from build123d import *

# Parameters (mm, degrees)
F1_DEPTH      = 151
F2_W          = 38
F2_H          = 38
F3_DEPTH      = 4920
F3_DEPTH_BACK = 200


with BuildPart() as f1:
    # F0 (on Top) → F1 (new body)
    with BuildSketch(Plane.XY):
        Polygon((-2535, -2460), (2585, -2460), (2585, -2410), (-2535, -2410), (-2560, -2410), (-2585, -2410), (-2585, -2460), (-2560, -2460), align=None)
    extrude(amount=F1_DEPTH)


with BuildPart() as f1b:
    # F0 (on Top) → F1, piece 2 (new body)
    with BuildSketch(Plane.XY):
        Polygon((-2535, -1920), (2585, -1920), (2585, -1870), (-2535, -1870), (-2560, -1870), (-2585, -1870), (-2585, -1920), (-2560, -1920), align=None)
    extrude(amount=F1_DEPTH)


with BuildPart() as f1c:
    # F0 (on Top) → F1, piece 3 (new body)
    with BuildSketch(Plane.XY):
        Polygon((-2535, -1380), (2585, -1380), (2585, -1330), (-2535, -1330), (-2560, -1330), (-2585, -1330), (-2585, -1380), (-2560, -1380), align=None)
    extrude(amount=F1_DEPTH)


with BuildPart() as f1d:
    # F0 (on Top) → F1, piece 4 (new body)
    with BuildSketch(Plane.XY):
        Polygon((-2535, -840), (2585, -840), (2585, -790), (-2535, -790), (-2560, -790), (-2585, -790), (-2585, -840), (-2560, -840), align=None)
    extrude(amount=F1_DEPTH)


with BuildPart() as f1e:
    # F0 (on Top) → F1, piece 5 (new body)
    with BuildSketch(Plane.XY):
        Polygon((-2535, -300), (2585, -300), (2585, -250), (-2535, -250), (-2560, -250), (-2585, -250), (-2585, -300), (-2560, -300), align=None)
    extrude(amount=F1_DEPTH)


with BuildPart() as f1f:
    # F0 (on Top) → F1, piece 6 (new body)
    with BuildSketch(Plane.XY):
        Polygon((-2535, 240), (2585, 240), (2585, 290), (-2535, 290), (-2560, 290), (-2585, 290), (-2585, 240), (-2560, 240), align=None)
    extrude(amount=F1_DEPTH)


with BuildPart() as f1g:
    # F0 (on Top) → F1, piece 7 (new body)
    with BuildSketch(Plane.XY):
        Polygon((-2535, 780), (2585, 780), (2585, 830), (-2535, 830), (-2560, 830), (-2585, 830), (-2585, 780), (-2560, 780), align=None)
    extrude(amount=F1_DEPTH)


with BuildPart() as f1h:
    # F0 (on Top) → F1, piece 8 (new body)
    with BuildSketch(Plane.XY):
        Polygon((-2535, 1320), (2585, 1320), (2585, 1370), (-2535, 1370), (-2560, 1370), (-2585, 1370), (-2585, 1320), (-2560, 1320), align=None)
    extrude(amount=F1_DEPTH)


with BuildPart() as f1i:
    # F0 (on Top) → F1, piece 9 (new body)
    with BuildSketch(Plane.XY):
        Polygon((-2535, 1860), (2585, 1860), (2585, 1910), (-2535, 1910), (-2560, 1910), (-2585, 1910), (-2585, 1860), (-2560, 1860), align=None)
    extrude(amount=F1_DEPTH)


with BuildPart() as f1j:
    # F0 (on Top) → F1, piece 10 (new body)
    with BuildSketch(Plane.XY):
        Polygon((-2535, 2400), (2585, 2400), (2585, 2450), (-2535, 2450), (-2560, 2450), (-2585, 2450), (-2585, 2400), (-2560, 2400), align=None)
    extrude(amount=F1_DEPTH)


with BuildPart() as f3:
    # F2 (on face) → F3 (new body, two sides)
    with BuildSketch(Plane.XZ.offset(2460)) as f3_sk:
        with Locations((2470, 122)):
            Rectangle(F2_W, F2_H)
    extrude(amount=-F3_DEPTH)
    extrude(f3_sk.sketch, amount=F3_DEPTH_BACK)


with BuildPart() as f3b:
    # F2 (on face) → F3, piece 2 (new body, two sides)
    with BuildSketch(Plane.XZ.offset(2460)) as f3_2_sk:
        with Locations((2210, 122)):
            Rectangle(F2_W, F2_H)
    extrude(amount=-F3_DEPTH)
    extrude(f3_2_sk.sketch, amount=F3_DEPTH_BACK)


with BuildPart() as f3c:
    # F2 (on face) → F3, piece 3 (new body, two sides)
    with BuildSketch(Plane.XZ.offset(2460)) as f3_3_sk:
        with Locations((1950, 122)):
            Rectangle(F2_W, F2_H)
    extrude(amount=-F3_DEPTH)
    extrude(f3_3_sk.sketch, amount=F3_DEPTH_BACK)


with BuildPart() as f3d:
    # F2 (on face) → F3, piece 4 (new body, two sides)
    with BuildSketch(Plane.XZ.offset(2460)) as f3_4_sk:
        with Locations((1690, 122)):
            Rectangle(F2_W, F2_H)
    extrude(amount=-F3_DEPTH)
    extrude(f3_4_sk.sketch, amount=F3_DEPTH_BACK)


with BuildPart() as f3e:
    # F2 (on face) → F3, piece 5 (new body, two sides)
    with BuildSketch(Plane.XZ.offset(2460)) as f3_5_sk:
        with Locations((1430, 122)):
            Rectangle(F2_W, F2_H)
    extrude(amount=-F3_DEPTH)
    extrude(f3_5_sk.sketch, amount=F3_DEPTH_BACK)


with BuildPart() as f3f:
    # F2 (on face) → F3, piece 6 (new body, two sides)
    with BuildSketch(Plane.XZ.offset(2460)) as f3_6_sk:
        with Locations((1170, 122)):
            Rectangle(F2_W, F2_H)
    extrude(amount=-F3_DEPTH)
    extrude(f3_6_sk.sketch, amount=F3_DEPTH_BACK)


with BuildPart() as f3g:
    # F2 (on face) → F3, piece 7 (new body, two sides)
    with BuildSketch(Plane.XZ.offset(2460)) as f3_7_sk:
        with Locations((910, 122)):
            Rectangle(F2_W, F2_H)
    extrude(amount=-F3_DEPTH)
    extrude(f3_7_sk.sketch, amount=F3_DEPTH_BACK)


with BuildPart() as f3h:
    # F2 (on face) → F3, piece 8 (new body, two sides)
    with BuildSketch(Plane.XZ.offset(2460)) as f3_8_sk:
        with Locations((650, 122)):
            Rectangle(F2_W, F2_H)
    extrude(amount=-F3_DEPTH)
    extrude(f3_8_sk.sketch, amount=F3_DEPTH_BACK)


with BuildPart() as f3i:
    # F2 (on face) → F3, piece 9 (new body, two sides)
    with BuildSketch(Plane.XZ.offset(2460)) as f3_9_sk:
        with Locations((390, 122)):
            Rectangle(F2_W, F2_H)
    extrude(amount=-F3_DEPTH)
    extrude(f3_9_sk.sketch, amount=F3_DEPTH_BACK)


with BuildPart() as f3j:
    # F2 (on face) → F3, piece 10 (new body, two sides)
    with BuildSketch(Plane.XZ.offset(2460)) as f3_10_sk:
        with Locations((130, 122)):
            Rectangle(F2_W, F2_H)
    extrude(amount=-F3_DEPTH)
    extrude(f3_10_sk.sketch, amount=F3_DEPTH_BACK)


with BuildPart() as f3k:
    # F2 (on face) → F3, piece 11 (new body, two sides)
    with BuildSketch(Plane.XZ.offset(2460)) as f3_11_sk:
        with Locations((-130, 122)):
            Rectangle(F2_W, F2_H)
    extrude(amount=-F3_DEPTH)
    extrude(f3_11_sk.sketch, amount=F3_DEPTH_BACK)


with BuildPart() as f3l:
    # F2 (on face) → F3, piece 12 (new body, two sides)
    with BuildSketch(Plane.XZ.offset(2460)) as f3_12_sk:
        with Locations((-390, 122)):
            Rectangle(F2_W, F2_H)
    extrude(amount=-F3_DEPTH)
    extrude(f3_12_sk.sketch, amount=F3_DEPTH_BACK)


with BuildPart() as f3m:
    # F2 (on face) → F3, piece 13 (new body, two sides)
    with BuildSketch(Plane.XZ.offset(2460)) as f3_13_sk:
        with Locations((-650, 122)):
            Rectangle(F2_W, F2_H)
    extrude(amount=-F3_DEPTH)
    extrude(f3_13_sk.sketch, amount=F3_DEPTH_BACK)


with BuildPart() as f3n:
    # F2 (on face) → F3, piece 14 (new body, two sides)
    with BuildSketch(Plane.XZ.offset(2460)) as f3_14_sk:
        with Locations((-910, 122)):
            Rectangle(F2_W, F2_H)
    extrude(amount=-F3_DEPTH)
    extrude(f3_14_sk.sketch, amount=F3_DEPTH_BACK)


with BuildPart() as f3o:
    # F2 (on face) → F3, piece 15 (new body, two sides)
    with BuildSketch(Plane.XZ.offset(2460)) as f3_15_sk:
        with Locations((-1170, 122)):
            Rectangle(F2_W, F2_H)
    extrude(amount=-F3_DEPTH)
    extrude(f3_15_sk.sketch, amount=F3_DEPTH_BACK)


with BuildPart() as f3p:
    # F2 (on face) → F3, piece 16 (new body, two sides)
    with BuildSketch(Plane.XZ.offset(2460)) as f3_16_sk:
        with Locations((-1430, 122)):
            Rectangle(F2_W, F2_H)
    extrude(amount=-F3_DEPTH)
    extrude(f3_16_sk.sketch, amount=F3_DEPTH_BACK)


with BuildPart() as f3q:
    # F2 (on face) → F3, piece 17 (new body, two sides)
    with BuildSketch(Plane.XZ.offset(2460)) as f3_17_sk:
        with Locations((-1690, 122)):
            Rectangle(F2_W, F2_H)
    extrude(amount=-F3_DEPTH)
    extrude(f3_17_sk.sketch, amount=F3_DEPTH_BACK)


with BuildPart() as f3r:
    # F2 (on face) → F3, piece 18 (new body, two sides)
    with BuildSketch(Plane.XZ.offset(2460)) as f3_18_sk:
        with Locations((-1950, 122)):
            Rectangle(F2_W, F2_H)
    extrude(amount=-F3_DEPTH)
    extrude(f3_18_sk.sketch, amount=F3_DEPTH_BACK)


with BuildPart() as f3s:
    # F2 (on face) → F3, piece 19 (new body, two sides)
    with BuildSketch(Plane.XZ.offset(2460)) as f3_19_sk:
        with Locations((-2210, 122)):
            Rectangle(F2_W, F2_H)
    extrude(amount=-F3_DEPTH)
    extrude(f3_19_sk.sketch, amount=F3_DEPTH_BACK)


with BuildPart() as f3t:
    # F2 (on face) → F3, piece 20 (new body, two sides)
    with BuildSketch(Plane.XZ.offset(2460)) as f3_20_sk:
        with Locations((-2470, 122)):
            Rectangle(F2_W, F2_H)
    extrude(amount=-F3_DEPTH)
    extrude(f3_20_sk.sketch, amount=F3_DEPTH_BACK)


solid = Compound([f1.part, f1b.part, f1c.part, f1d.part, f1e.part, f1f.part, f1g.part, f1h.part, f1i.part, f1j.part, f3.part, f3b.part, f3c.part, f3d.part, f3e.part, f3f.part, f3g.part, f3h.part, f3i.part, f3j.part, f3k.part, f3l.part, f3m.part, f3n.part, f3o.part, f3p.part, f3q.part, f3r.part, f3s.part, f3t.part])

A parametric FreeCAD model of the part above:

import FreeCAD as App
import Part
import Sketcher

V = App.Vector


def add_polygon(sketch, points):
    """Adds a closed chain of lines whose ends are joined by coincident constraints."""
    first, n = sketch.GeometryCount, len(points)
    for a, b in zip(points, points[1:] + points[:1]):
        sketch.addGeometry(Part.LineSegment(App.Vector(*a, 0), App.Vector(*b, 0)), False)
    for i in range(n):
        sketch.addConstraint(Sketcher.Constraint("Coincident", first + i, 2, first + (i + 1) % n, 1))

doc = App.newDocument("Part")
body = doc.addObject("PartDesign::Body", "Body")

# Sketch on XY plane
sketch1 = doc.addObject("Sketcher::SketchObject", "Sketch")
body.addObject(sketch1)
sketch1.AttachmentSupport = (doc.XY_Plane, [""])
sketch1.MapMode = "FlatFace"
add_polygon(sketch1, [(2585, -2460), (2585, -2410), (-2585, -2410), (-2585, -2460)])  # lines 0-3
sketch1.addConstraint([
    Sketcher.Constraint("Vertical", 0),
    Sketcher.Constraint("Horizontal", 1),
    Sketcher.Constraint("Vertical", 2),
    Sketcher.Constraint("Horizontal", 3),
    Sketcher.Constraint("DistanceX", 1, 2, 1, 1, 5170.0),
    Sketcher.Constraint("DistanceY", 0, 1, 0, 2, 50.0),
    Sketcher.Constraint("DistanceX", -1, 1, 0, 2, 2585.0),
    Sketcher.Constraint("DistanceY", 0, 2, -1, 1, 2410.0),
])
pad1 = doc.addObject("PartDesign::Pad", "Pad")
body.addObject(pad1)
pad1.Profile = sketch1
pad1.Length = 151
body2 = doc.addObject("PartDesign::Body", "Body001")

# Sketch on XY plane
sketch2 = doc.addObject("Sketcher::SketchObject", "Sketch001")
body2.addObject(sketch2)
sketch2.AttachmentSupport = (doc.getObject("XY_Plane001"), [""])
sketch2.MapMode = "FlatFace"
add_polygon(sketch2, [(2585, -1920), (2585, -1870), (-2585, -1870), (-2585, -1920)])  # lines 0-3
sketch2.addConstraint([
    Sketcher.Constraint("Vertical", 0),
    Sketcher.Constraint("Horizontal", 1),
    Sketcher.Constraint("Vertical", 2),
    Sketcher.Constraint("Horizontal", 3),
    Sketcher.Constraint("DistanceX", 1, 2, 1, 1, 5170.0),
    Sketcher.Constraint("DistanceY", 0, 1, 0, 2, 50.0),
    Sketcher.Constraint("DistanceX", -1, 1, 0, 2, 2585.0),
    Sketcher.Constraint("DistanceY", 0, 2, -1, 1, 1870.0),
])
pad2 = doc.addObject("PartDesign::Pad", "Pad001")
body2.addObject(pad2)
pad2.Profile = sketch2
pad2.Length = 151
body3 = doc.addObject("PartDesign::Body", "Body002")

# Sketch on XY plane
sketch3 = doc.addObject("Sketcher::SketchObject", "Sketch002")
body3.addObject(sketch3)
sketch3.AttachmentSupport = (doc.getObject("XY_Plane002"), [""])
sketch3.MapMode = "FlatFace"
add_polygon(sketch3, [(2585, -1380), (2585, -1330), (-2585, -1330), (-2585, -1380)])  # lines 0-3
sketch3.addConstraint([
    Sketcher.Constraint("Vertical", 0),
    Sketcher.Constraint("Horizontal", 1),
    Sketcher.Constraint("Vertical", 2),
    Sketcher.Constraint("Horizontal", 3),
    Sketcher.Constraint("DistanceX", 1, 2, 1, 1, 5170.0),
    Sketcher.Constraint("DistanceY", 0, 1, 0, 2, 50.0),
    Sketcher.Constraint("DistanceX", -1, 1, 0, 2, 2585.0),
    Sketcher.Constraint("DistanceY", 0, 2, -1, 1, 1330.0),
])
pad3 = doc.addObject("PartDesign::Pad", "Pad002")
body3.addObject(pad3)
pad3.Profile = sketch3
pad3.Length = 151
body4 = doc.addObject("PartDesign::Body", "Body003")

# Sketch on XY plane
sketch4 = doc.addObject("Sketcher::SketchObject", "Sketch003")
body4.addObject(sketch4)
sketch4.AttachmentSupport = (doc.getObject("XY_Plane003"), [""])
sketch4.MapMode = "FlatFace"
add_polygon(sketch4, [(2585, -840), (2585, -790), (-2585, -790), (-2585, -840)])  # lines 0-3
sketch4.addConstraint([
    Sketcher.Constraint("Vertical", 0),
    Sketcher.Constraint("Horizontal", 1),
    Sketcher.Constraint("Vertical", 2),
    Sketcher.Constraint("Horizontal", 3),
    Sketcher.Constraint("DistanceX", 1, 2, 1, 1, 5170.0),
    Sketcher.Constraint("DistanceY", 0, 1, 0, 2, 50.0),
    Sketcher.Constraint("DistanceX", -1, 1, 0, 2, 2585.0),
    Sketcher.Constraint("DistanceY", 0, 2, -1, 1, 790.0),
])
pad4 = doc.addObject("PartDesign::Pad", "Pad003")
body4.addObject(pad4)
pad4.Profile = sketch4
pad4.Length = 151
body5 = doc.addObject("PartDesign::Body", "Body004")

# Sketch on XY plane
sketch5 = doc.addObject("Sketcher::SketchObject", "Sketch004")
body5.addObject(sketch5)
sketch5.AttachmentSupport = (doc.getObject("XY_Plane004"), [""])
sketch5.MapMode = "FlatFace"
add_polygon(sketch5, [(2585, -300), (2585, -250), (-2585, -250), (-2585, -300)])  # lines 0-3
sketch5.addConstraint([
    Sketcher.Constraint("Vertical", 0),
    Sketcher.Constraint("Horizontal", 1),
    Sketcher.Constraint("Vertical", 2),
    Sketcher.Constraint("Horizontal", 3),
    Sketcher.Constraint("DistanceX", 1, 2, 1, 1, 5170.0),
    Sketcher.Constraint("DistanceY", 0, 1, 0, 2, 50.0),
    Sketcher.Constraint("DistanceX", -1, 1, 0, 2, 2585.0),
    Sketcher.Constraint("DistanceY", 0, 2, -1, 1, 250.0),
])
pad5 = doc.addObject("PartDesign::Pad", "Pad004")
body5.addObject(pad5)
pad5.Profile = sketch5
pad5.Length = 151
body6 = doc.addObject("PartDesign::Body", "Body005")

# Sketch on XY plane
sketch6 = doc.addObject("Sketcher::SketchObject", "Sketch005")
body6.addObject(sketch6)
sketch6.AttachmentSupport = (doc.getObject("XY_Plane005"), [""])
sketch6.MapMode = "FlatFace"
add_polygon(sketch6, [(2585, 240), (2585, 290), (-2585, 290), (-2585, 240)])  # lines 0-3
sketch6.addConstraint([
    Sketcher.Constraint("Vertical", 0),
    Sketcher.Constraint("Horizontal", 1),
    Sketcher.Constraint("Vertical", 2),
    Sketcher.Constraint("Horizontal", 3),
    Sketcher.Constraint("DistanceX", 1, 2, 1, 1, 5170.0),
    Sketcher.Constraint("DistanceY", 0, 1, 0, 2, 50.0),
    Sketcher.Constraint("DistanceX", -1, 1, 0, 2, 2585.0),
    Sketcher.Constraint("DistanceY", -1, 1, 0, 2, 290.0),
])
pad6 = doc.addObject("PartDesign::Pad", "Pad005")
body6.addObject(pad6)
pad6.Profile = sketch6
pad6.Length = 151
body7 = doc.addObject("PartDesign::Body", "Body006")

# Sketch on XY plane
sketch7 = doc.addObject("Sketcher::SketchObject", "Sketch006")
body7.addObject(sketch7)
sketch7.AttachmentSupport = (doc.getObject("XY_Plane006"), [""])
sketch7.MapMode = "FlatFace"
add_polygon(sketch7, [(2585, 780), (2585, 830), (-2585, 830), (-2585, 780)])  # lines 0-3
sketch7.addConstraint([
    Sketcher.Constraint("Vertical", 0),
    Sketcher.Constraint("Horizontal", 1),
    Sketcher.Constraint("Vertical", 2),
    Sketcher.Constraint("Horizontal", 3),
    Sketcher.Constraint("DistanceX", 1, 2, 1, 1, 5170.0),
    Sketcher.Constraint("DistanceY", 0, 1, 0, 2, 50.0),
    Sketcher.Constraint("DistanceX", -1, 1, 0, 2, 2585.0),
    Sketcher.Constraint("DistanceY", -1, 1, 0, 2, 830.0),
])
pad7 = doc.addObject("PartDesign::Pad", "Pad006")
body7.addObject(pad7)
pad7.Profile = sketch7
pad7.Length = 151
body8 = doc.addObject("PartDesign::Body", "Body007")

# Sketch on XY plane
sketch8 = doc.addObject("Sketcher::SketchObject", "Sketch007")
body8.addObject(sketch8)
sketch8.AttachmentSupport = (doc.getObject("XY_Plane007"), [""])
sketch8.MapMode = "FlatFace"
add_polygon(sketch8, [(2585, 1320), (2585, 1370), (-2585, 1370), (-2585, 1320)])  # lines 0-3
sketch8.addConstraint([
    Sketcher.Constraint("Vertical", 0),
    Sketcher.Constraint("Horizontal", 1),
    Sketcher.Constraint("Vertical", 2),
    Sketcher.Constraint("Horizontal", 3),
    Sketcher.Constraint("DistanceX", 1, 2, 1, 1, 5170.0),
    Sketcher.Constraint("DistanceY", 0, 1, 0, 2, 50.0),
    Sketcher.Constraint("DistanceX", -1, 1, 0, 2, 2585.0),
    Sketcher.Constraint("DistanceY", -1, 1, 0, 2, 1370.0),
])
pad8 = doc.addObject("PartDesign::Pad", "Pad007")
body8.addObject(pad8)
pad8.Profile = sketch8
pad8.Length = 151
body9 = doc.addObject("PartDesign::Body", "Body008")

# Sketch on XY plane
sketch9 = doc.addObject("Sketcher::SketchObject", "Sketch008")
body9.addObject(sketch9)
sketch9.AttachmentSupport = (doc.getObject("XY_Plane008"), [""])
sketch9.MapMode = "FlatFace"
add_polygon(sketch9, [(2585, 1860), (2585, 1910), (-2585, 1910), (-2585, 1860)])  # lines 0-3
sketch9.addConstraint([
    Sketcher.Constraint("Vertical", 0),
    Sketcher.Constraint("Horizontal", 1),
    Sketcher.Constraint("Vertical", 2),
    Sketcher.Constraint("Horizontal", 3),
    Sketcher.Constraint("DistanceX", 1, 2, 1, 1, 5170.0),
    Sketcher.Constraint("DistanceY", 0, 1, 0, 2, 50.0),
    Sketcher.Constraint("DistanceX", -1, 1, 0, 2, 2585.0),
    Sketcher.Constraint("DistanceY", -1, 1, 0, 2, 1910.0),
])
pad9 = doc.addObject("PartDesign::Pad", "Pad008")
body9.addObject(pad9)
pad9.Profile = sketch9
pad9.Length = 151
body10 = doc.addObject("PartDesign::Body", "Body009")

# Sketch on XY plane
sketch10 = doc.addObject("Sketcher::SketchObject", "Sketch009")
body10.addObject(sketch10)
sketch10.AttachmentSupport = (doc.getObject("XY_Plane009"), [""])
sketch10.MapMode = "FlatFace"
add_polygon(sketch10, [(2585, 2400), (2585, 2450), (-2585, 2450), (-2585, 2400)])  # lines 0-3
sketch10.addConstraint([
    Sketcher.Constraint("Vertical", 0),
    Sketcher.Constraint("Horizontal", 1),
    Sketcher.Constraint("Vertical", 2),
    Sketcher.Constraint("Horizontal", 3),
    Sketcher.Constraint("DistanceX", 1, 2, 1, 1, 5170.0),
    Sketcher.Constraint("DistanceY", 0, 1, 0, 2, 50.0),
    Sketcher.Constraint("DistanceX", -1, 1, 0, 2, 2585.0),
    Sketcher.Constraint("DistanceY", -1, 1, 0, 2, 2450.0),
])
pad10 = doc.addObject("PartDesign::Pad", "Pad009")
body10.addObject(pad10)
pad10.Profile = sketch10
pad10.Length = 151
body11 = doc.addObject("PartDesign::Body", "Body010")

# Sketch on XZ plane
sketch11 = doc.addObject("Sketcher::SketchObject", "Sketch010")
body11.addObject(sketch11)
sketch11.AttachmentSupport = (doc.getObject("XZ_Plane010"), [""])
sketch11.MapMode = "FlatFace"
sketch11.AttachmentOffset = App.Placement(V(0, 0, 2460), App.Rotation())
add_polygon(sketch11, [(2451, 141), (2451, 103), (2489, 103), (2489, 141)])  # lines 0-3
sketch11.addConstraint([
    Sketcher.Constraint("Vertical", 0),
    Sketcher.Constraint("Horizontal", 1),
    Sketcher.Constraint("Vertical", 2),
    Sketcher.Constraint("Horizontal", 3),
    Sketcher.Constraint("Equal", 3, 0),
    Sketcher.Constraint("DistanceX", 1, 1, 1, 2, 38.0),
    Sketcher.Constraint("DistanceX", -1, 1, 0, 2, 2451.0),
    Sketcher.Constraint("DistanceY", -1, 1, 0, 2, 103.0),
])
pad11 = doc.addObject("PartDesign::Pad", "Pad010")
body11.addObject(pad11)
pad11.Profile = sketch11
pad11.Type = "TwoLengths"
pad11.Length = 4920
pad11.Length2 = 200
pad11.Reversed = True
body12 = doc.addObject("PartDesign::Body", "Body011")

# Sketch on XZ plane
sketch12 = doc.addObject("Sketcher::SketchObject", "Sketch011")
body12.addObject(sketch12)
sketch12.AttachmentSupport = (doc.getObject("XZ_Plane011"), [""])
sketch12.MapMode = "FlatFace"
sketch12.AttachmentOffset = App.Placement(V(0, 0, 2460), App.Rotation())
add_polygon(sketch12, [(2191, 141), (2191, 103), (2229, 103), (2229, 141)])  # lines 0-3
sketch12.addConstraint([
    Sketcher.Constraint("Vertical", 0),
    Sketcher.Constraint("Horizontal", 1),
    Sketcher.Constraint("Vertical", 2),
    Sketcher.Constraint("Horizontal", 3),
    Sketcher.Constraint("Equal", 3, 0),
    Sketcher.Constraint("DistanceX", 1, 1, 1, 2, 38.0),
    Sketcher.Constraint("DistanceX", -1, 1, 0, 2, 2191.0),
    Sketcher.Constraint("DistanceY", -1, 1, 0, 2, 103.0),
])
pad12 = doc.addObject("PartDesign::Pad", "Pad011")
body12.addObject(pad12)
pad12.Profile = sketch12
pad12.Type = "TwoLengths"
pad12.Length = 4920
pad12.Length2 = 200
pad12.Reversed = True
body13 = doc.addObject("PartDesign::Body", "Body012")

# Sketch on XZ plane
sketch13 = doc.addObject("Sketcher::SketchObject", "Sketch012")
body13.addObject(sketch13)
sketch13.AttachmentSupport = (doc.getObject("XZ_Plane012"), [""])
sketch13.MapMode = "FlatFace"
sketch13.AttachmentOffset = App.Placement(V(0, 0, 2460), App.Rotation())
add_polygon(sketch13, [(1931, 141), (1931, 103), (1969, 103), (1969, 141)])  # lines 0-3
sketch13.addConstraint([
    Sketcher.Constraint("Vertical", 0),
    Sketcher.Constraint("Horizontal", 1),
    Sketcher.Constraint("Vertical", 2),
    Sketcher.Constraint("Horizontal", 3),
    Sketcher.Constraint("Equal", 3, 0),
    Sketcher.Constraint("DistanceX", 1, 1, 1, 2, 38.0),
    Sketcher.Constraint("DistanceX", -1, 1, 0, 2, 1931.0),
    Sketcher.Constraint("DistanceY", -1, 1, 0, 2, 103.0),
])
pad13 = doc.addObject("PartDesign::Pad", "Pad012")
body13.addObject(pad13)
pad13.Profile = sketch13
pad13.Type = "TwoLengths"
pad13.Length = 4920
pad13.Length2 = 200
pad13.Reversed = True
body14 = doc.addObject("PartDesign::Body", "Body013")

# Sketch on XZ plane
sketch14 = doc.addObject("Sketcher::SketchObject", "Sketch013")
body14.addObject(sketch14)
sketch14.AttachmentSupport = (doc.getObject("XZ_Plane013"), [""])
sketch14.MapMode = "FlatFace"
sketch14.AttachmentOffset = App.Placement(V(0, 0, 2460), App.Rotation())
add_polygon(sketch14, [(1671, 141), (1671, 103), (1709, 103), (1709, 141)])  # lines 0-3
sketch14.addConstraint([
    Sketcher.Constraint("Vertical", 0),
    Sketcher.Constraint("Horizontal", 1),
    Sketcher.Constraint("Vertical", 2),
    Sketcher.Constraint("Horizontal", 3),
    Sketcher.Constraint("Equal", 3, 0),
    Sketcher.Constraint("DistanceX", 1, 1, 1, 2, 38.0),
    Sketcher.Constraint("DistanceX", -1, 1, 0, 2, 1671.0),
    Sketcher.Constraint("DistanceY", -1, 1, 0, 2, 103.0),
])
pad14 = doc.addObject("PartDesign::Pad", "Pad013")
body14.addObject(pad14)
pad14.Profile = sketch14
pad14.Type = "TwoLengths"
pad14.Length = 4920
pad14.Length2 = 200
pad14.Reversed = True
body15 = doc.addObject("PartDesign::Body", "Body014")

# Sketch on XZ plane
sketch15 = doc.addObject("Sketcher::SketchObject", "Sketch014")
body15.addObject(sketch15)
sketch15.AttachmentSupport = (doc.getObject("XZ_Plane014"), [""])
sketch15.MapMode = "FlatFace"
sketch15.AttachmentOffset = App.Placement(V(0, 0, 2460), App.Rotation())
add_polygon(sketch15, [(1411, 141), (1411, 103), (1449, 103), (1449, 141)])  # lines 0-3
sketch15.addConstraint([
    Sketcher.Constraint("Vertical", 0),
    Sketcher.Constraint("Horizontal", 1),
    Sketcher.Constraint("Vertical", 2),
    Sketcher.Constraint("Horizontal", 3),
    Sketcher.Constraint("Equal", 3, 0),
    Sketcher.Constraint("DistanceX", 1, 1, 1, 2, 38.0),
    Sketcher.Constraint("DistanceX", -1, 1, 0, 2, 1411.0),
    Sketcher.Constraint("DistanceY", -1, 1, 0, 2, 103.0),
])
pad15 = doc.addObject("PartDesign::Pad", "Pad014")
body15.addObject(pad15)
pad15.Profile = sketch15
pad15.Type = "TwoLengths"
pad15.Length = 4920
pad15.Length2 = 200
pad15.Reversed = True
body16 = doc.addObject("PartDesign::Body", "Body015")

# Sketch on XZ plane
sketch16 = doc.addObject("Sketcher::SketchObject", "Sketch015")
body16.addObject(sketch16)
sketch16.AttachmentSupport = (doc.getObject("XZ_Plane015"), [""])
sketch16.MapMode = "FlatFace"
sketch16.AttachmentOffset = App.Placement(V(0, 0, 2460), App.Rotation())
add_polygon(sketch16, [(1151, 141), (1151, 103), (1189, 103), (1189, 141)])  # lines 0-3
sketch16.addConstraint([
    Sketcher.Constraint("Vertical", 0),
    Sketcher.Constraint("Horizontal", 1),
    Sketcher.Constraint("Vertical", 2),
    Sketcher.Constraint("Horizontal", 3),
    Sketcher.Constraint("Equal", 3, 0),
    Sketcher.Constraint("DistanceX", 1, 1, 1, 2, 38.0),
    Sketcher.Constraint("DistanceX", -1, 1, 0, 2, 1151.0),
    Sketcher.Constraint("DistanceY", -1, 1, 0, 2, 103.0),
])
pad16 = doc.addObject("PartDesign::Pad", "Pad015")
body16.addObject(pad16)
pad16.Profile = sketch16
pad16.Type = "TwoLengths"
pad16.Length = 4920
pad16.Length2 = 200
pad16.Reversed = True
body17 = doc.addObject("PartDesign::Body", "Body016")

# Sketch on XZ plane
sketch17 = doc.addObject("Sketcher::SketchObject", "Sketch016")
body17.addObject(sketch17)
sketch17.AttachmentSupport = (doc.getObject("XZ_Plane016"), [""])
sketch17.MapMode = "FlatFace"
sketch17.AttachmentOffset = App.Placement(V(0, 0, 2460), App.Rotation())
add_polygon(sketch17, [(891, 141), (891, 103), (929, 103), (929, 141)])  # lines 0-3
sketch17.addConstraint([
    Sketcher.Constraint("Vertical", 0),
    Sketcher.Constraint("Horizontal", 1),
    Sketcher.Constraint("Vertical", 2),
    Sketcher.Constraint("Horizontal", 3),
    Sketcher.Constraint("Equal", 3, 0),
    Sketcher.Constraint("DistanceX", 1, 1, 1, 2, 38.0),
    Sketcher.Constraint("DistanceX", -1, 1, 0, 2, 891.0),
    Sketcher.Constraint("DistanceY", -1, 1, 0, 2, 103.0),
])
pad17 = doc.addObject("PartDesign::Pad", "Pad016")
body17.addObject(pad17)
pad17.Profile = sketch17
pad17.Type = "TwoLengths"
pad17.Length = 4920
pad17.Length2 = 200
pad17.Reversed = True
body18 = doc.addObject("PartDesign::Body", "Body017")

# Sketch on XZ plane
sketch18 = doc.addObject("Sketcher::SketchObject", "Sketch017")
body18.addObject(sketch18)
sketch18.AttachmentSupport = (doc.getObject("XZ_Plane017"), [""])
sketch18.MapMode = "FlatFace"
sketch18.AttachmentOffset = App.Placement(V(0, 0, 2460), App.Rotation())
add_polygon(sketch18, [(631, 141), (631, 103), (669, 103), (669, 141)])  # lines 0-3
sketch18.addConstraint([
    Sketcher.Constraint("Vertical", 0),
    Sketcher.Constraint("Horizontal", 1),
    Sketcher.Constraint("Vertical", 2),
    Sketcher.Constraint("Horizontal", 3),
    Sketcher.Constraint("Equal", 3, 0),
    Sketcher.Constraint("DistanceX", 1, 1, 1, 2, 38.0),
    Sketcher.Constraint("DistanceX", -1, 1, 0, 2, 631.0),
    Sketcher.Constraint("DistanceY", -1, 1, 0, 2, 103.0),
])
pad18 = doc.addObject("PartDesign::Pad", "Pad017")
body18.addObject(pad18)
pad18.Profile = sketch18
pad18.Type = "TwoLengths"
pad18.Length = 4920
pad18.Length2 = 200
pad18.Reversed = True
body19 = doc.addObject("PartDesign::Body", "Body018")

# Sketch on XZ plane
sketch19 = doc.addObject("Sketcher::SketchObject", "Sketch018")
body19.addObject(sketch19)
sketch19.AttachmentSupport = (doc.getObject("XZ_Plane018"), [""])
sketch19.MapMode = "FlatFace"
sketch19.AttachmentOffset = App.Placement(V(0, 0, 2460), App.Rotation())
add_polygon(sketch19, [(371, 141), (371, 103), (409, 103), (409, 141)])  # lines 0-3
sketch19.addConstraint([
    Sketcher.Constraint("Vertical", 0),
    Sketcher.Constraint("Horizontal", 1),
    Sketcher.Constraint("Vertical", 2),
    Sketcher.Constraint("Horizontal", 3),
    Sketcher.Constraint("Equal", 3, 0),
    Sketcher.Constraint("DistanceX", 1, 1, 1, 2, 38.0),
    Sketcher.Constraint("DistanceX", -1, 1, 0, 2, 371.0),
    Sketcher.Constraint("DistanceY", -1, 1, 0, 2, 103.0),
])
pad19 = doc.addObject("PartDesign::Pad", "Pad018")
body19.addObject(pad19)
pad19.Profile = sketch19
pad19.Type = "TwoLengths"
pad19.Length = 4920
pad19.Length2 = 200
pad19.Reversed = True
body20 = doc.addObject("PartDesign::Body", "Body019")

# Sketch on XZ plane
sketch20 = doc.addObject("Sketcher::SketchObject", "Sketch019")
body20.addObject(sketch20)
sketch20.AttachmentSupport = (doc.getObject("XZ_Plane019"), [""])
sketch20.MapMode = "FlatFace"
sketch20.AttachmentOffset = App.Placement(V(0, 0, 2460), App.Rotation())
add_polygon(sketch20, [(111, 141), (111, 103), (149, 103), (149, 141)])  # lines 0-3
sketch20.addConstraint([
    Sketcher.Constraint("Vertical", 0),
    Sketcher.Constraint("Horizontal", 1),
    Sketcher.Constraint("Vertical", 2),
    Sketcher.Constraint("Horizontal", 3),
    Sketcher.Constraint("Equal", 3, 0),
    Sketcher.Constraint("DistanceX", 1, 1, 1, 2, 38.0),
    Sketcher.Constraint("DistanceX", -1, 1, 0, 2, 111.0),
    Sketcher.Constraint("DistanceY", -1, 1, 0, 2, 103.0),
])
pad20 = doc.addObject("PartDesign::Pad", "Pad019")
body20.addObject(pad20)
pad20.Profile = sketch20
pad20.Type = "TwoLengths"
pad20.Length = 4920
pad20.Length2 = 200
pad20.Reversed = True
body21 = doc.addObject("PartDesign::Body", "Body020")

# Sketch on XZ plane
sketch21 = doc.addObject("Sketcher::SketchObject", "Sketch020")
body21.addObject(sketch21)
sketch21.AttachmentSupport = (doc.getObject("XZ_Plane020"), [""])
sketch21.MapMode = "FlatFace"
sketch21.AttachmentOffset = App.Placement(V(0, 0, 2460), App.Rotation())
add_polygon(sketch21, [(-149, 141), (-149, 103), (-111, 103), (-111, 141)])  # lines 0-3
sketch21.addConstraint([
    Sketcher.Constraint("Vertical", 0),
    Sketcher.Constraint("Horizontal", 1),
    Sketcher.Constraint("Vertical", 2),
    Sketcher.Constraint("Horizontal", 3),
    Sketcher.Constraint("Equal", 3, 0),
    Sketcher.Constraint("DistanceX", 1, 1, 1, 2, 38.0),
    Sketcher.Constraint("DistanceX", 0, 2, -1, 1, 149.0),
    Sketcher.Constraint("DistanceY", -1, 1, 0, 2, 103.0),
])
pad21 = doc.addObject("PartDesign::Pad", "Pad020")
body21.addObject(pad21)
pad21.Profile = sketch21
pad21.Type = "TwoLengths"
pad21.Length = 4920
pad21.Length2 = 200
pad21.Reversed = True
body22 = doc.addObject("PartDesign::Body", "Body021")

# Sketch on XZ plane
sketch22 = doc.addObject("Sketcher::SketchObject", "Sketch021")
body22.addObject(sketch22)
sketch22.AttachmentSupport = (doc.getObject("XZ_Plane021"), [""])
sketch22.MapMode = "FlatFace"
sketch22.AttachmentOffset = App.Placement(V(0, 0, 2460), App.Rotation())
add_polygon(sketch22, [(-409, 141), (-409, 103), (-371, 103), (-371, 141)])  # lines 0-3
sketch22.addConstraint([
    Sketcher.Constraint("Vertical", 0),
    Sketcher.Constraint("Horizontal", 1),
    Sketcher.Constraint("Vertical", 2),
    Sketcher.Constraint("Horizontal", 3),
    Sketcher.Constraint("Equal", 3, 0),
    Sketcher.Constraint("DistanceX", 1, 1, 1, 2, 38.0),
    Sketcher.Constraint("DistanceX", 0, 2, -1, 1, 409.0),
    Sketcher.Constraint("DistanceY", -1, 1, 0, 2, 103.0),
])
pad22 = doc.addObject("PartDesign::Pad", "Pad021")
body22.addObject(pad22)
pad22.Profile = sketch22
pad22.Type = "TwoLengths"
pad22.Length = 4920
pad22.Length2 = 200
pad22.Reversed = True
body23 = doc.addObject("PartDesign::Body", "Body022")

# Sketch on XZ plane
sketch23 = doc.addObject("Sketcher::SketchObject", "Sketch022")
body23.addObject(sketch23)
sketch23.AttachmentSupport = (doc.getObject("XZ_Plane022"), [""])
sketch23.MapMode = "FlatFace"
sketch23.AttachmentOffset = App.Placement(V(0, 0, 2460), App.Rotation())
add_polygon(sketch23, [(-669, 141), (-669, 103), (-631, 103), (-631, 141)])  # lines 0-3
sketch23.addConstraint([
    Sketcher.Constraint("Vertical", 0),
    Sketcher.Constraint("Horizontal", 1),
    Sketcher.Constraint("Vertical", 2),
    Sketcher.Constraint("Horizontal", 3),
    Sketcher.Constraint("Equal", 3, 0),
    Sketcher.Constraint("DistanceX", 1, 1, 1, 2, 38.0),
    Sketcher.Constraint("DistanceX", 0, 2, -1, 1, 669.0),
    Sketcher.Constraint("DistanceY", -1, 1, 0, 2, 103.0),
])
pad23 = doc.addObject("PartDesign::Pad", "Pad022")
body23.addObject(pad23)
pad23.Profile = sketch23
pad23.Type = "TwoLengths"
pad23.Length = 4920
pad23.Length2 = 200
pad23.Reversed = True
body24 = doc.addObject("PartDesign::Body", "Body023")

# Sketch on XZ plane
sketch24 = doc.addObject("Sketcher::SketchObject", "Sketch023")
body24.addObject(sketch24)
sketch24.AttachmentSupport = (doc.getObject("XZ_Plane023"), [""])
sketch24.MapMode = "FlatFace"
sketch24.AttachmentOffset = App.Placement(V(0, 0, 2460), App.Rotation())
add_polygon(sketch24, [(-929, 141), (-929, 103), (-891, 103), (-891, 141)])  # lines 0-3
sketch24.addConstraint([
    Sketcher.Constraint("Vertical", 0),
    Sketcher.Constraint("Horizontal", 1),
    Sketcher.Constraint("Vertical", 2),
    Sketcher.Constraint("Horizontal", 3),
    Sketcher.Constraint("Equal", 3, 0),
    Sketcher.Constraint("DistanceX", 1, 1, 1, 2, 38.0),
    Sketcher.Constraint("DistanceX", 0, 2, -1, 1, 929.0),
    Sketcher.Constraint("DistanceY", -1, 1, 0, 2, 103.0),
])
pad24 = doc.addObject("PartDesign::Pad", "Pad023")
body24.addObject(pad24)
pad24.Profile = sketch24
pad24.Type = "TwoLengths"
pad24.Length = 4920
pad24.Length2 = 200
pad24.Reversed = True
body25 = doc.addObject("PartDesign::Body", "Body024")

# Sketch on XZ plane
sketch25 = doc.addObject("Sketcher::SketchObject", "Sketch024")
body25.addObject(sketch25)
sketch25.AttachmentSupport = (doc.getObject("XZ_Plane024"), [""])
sketch25.MapMode = "FlatFace"
sketch25.AttachmentOffset = App.Placement(V(0, 0, 2460), App.Rotation())
add_polygon(sketch25, [(-1189, 141), (-1189, 103), (-1151, 103), (-1151, 141)])  # lines 0-3
sketch25.addConstraint([
    Sketcher.Constraint("Vertical", 0),
    Sketcher.Constraint("Horizontal", 1),
    Sketcher.Constraint("Vertical", 2),
    Sketcher.Constraint("Horizontal", 3),
    Sketcher.Constraint("Equal", 3, 0),
    Sketcher.Constraint("DistanceX", 1, 1, 1, 2, 38.0),
    Sketcher.Constraint("DistanceX", 0, 2, -1, 1, 1189.0),
    Sketcher.Constraint("DistanceY", -1, 1, 0, 2, 103.0),
])
pad25 = doc.addObject("PartDesign::Pad", "Pad024")
body25.addObject(pad25)
pad25.Profile = sketch25
pad25.Type = "TwoLengths"
pad25.Length = 4920
pad25.Length2 = 200
pad25.Reversed = True
body26 = doc.addObject("PartDesign::Body", "Body025")

# Sketch on XZ plane
sketch26 = doc.addObject("Sketcher::SketchObject", "Sketch025")
body26.addObject(sketch26)
sketch26.AttachmentSupport = (doc.getObject("XZ_Plane025"), [""])
sketch26.MapMode = "FlatFace"
sketch26.AttachmentOffset = App.Placement(V(0, 0, 2460), App.Rotation())
add_polygon(sketch26, [(-1449, 141), (-1449, 103), (-1411, 103), (-1411, 141)])  # lines 0-3
sketch26.addConstraint([
    Sketcher.Constraint("Vertical", 0),
    Sketcher.Constraint("Horizontal", 1),
    Sketcher.Constraint("Vertical", 2),
    Sketcher.Constraint("Horizontal", 3),
    Sketcher.Constraint("Equal", 3, 0),
    Sketcher.Constraint("DistanceX", 1, 1, 1, 2, 38.0),
    Sketcher.Constraint("DistanceX", 0, 2, -1, 1, 1449.0),
    Sketcher.Constraint("DistanceY", -1, 1, 0, 2, 103.0),
])
pad26 = doc.addObject("PartDesign::Pad", "Pad025")
body26.addObject(pad26)
pad26.Profile = sketch26
pad26.Type = "TwoLengths"
pad26.Length = 4920
pad26.Length2 = 200
pad26.Reversed = True
body27 = doc.addObject("PartDesign::Body", "Body026")

# Sketch on XZ plane
sketch27 = doc.addObject("Sketcher::SketchObject", "Sketch026")
body27.addObject(sketch27)
sketch27.AttachmentSupport = (doc.getObject("XZ_Plane026"), [""])
sketch27.MapMode = "FlatFace"
sketch27.AttachmentOffset = App.Placement(V(0, 0, 2460), App.Rotation())
add_polygon(sketch27, [(-1709, 141), (-1709, 103), (-1671, 103), (-1671, 141)])  # lines 0-3
sketch27.addConstraint([
    Sketcher.Constraint("Vertical", 0),
    Sketcher.Constraint("Horizontal", 1),
    Sketcher.Constraint("Vertical", 2),
    Sketcher.Constraint("Horizontal", 3),
    Sketcher.Constraint("Equal", 3, 0),
    Sketcher.Constraint("DistanceX", 1, 1, 1, 2, 38.0),
    Sketcher.Constraint("DistanceX", 0, 2, -1, 1, 1709.0),
    Sketcher.Constraint("DistanceY", -1, 1, 0, 2, 103.0),
])
pad27 = doc.addObject("PartDesign::Pad", "Pad026")
body27.addObject(pad27)
pad27.Profile = sketch27
pad27.Type = "TwoLengths"
pad27.Length = 4920
pad27.Length2 = 200
pad27.Reversed = True
body28 = doc.addObject("PartDesign::Body", "Body027")

# Sketch on XZ plane
sketch28 = doc.addObject("Sketcher::SketchObject", "Sketch027")
body28.addObject(sketch28)
sketch28.AttachmentSupport = (doc.getObject("XZ_Plane027"), [""])
sketch28.MapMode = "FlatFace"
sketch28.AttachmentOffset = App.Placement(V(0, 0, 2460), App.Rotation())
add_polygon(sketch28, [(-1969, 141), (-1969, 103), (-1931, 103), (-1931, 141)])  # lines 0-3
sketch28.addConstraint([
    Sketcher.Constraint("Vertical", 0),
    Sketcher.Constraint("Horizontal", 1),
    Sketcher.Constraint("Vertical", 2),
    Sketcher.Constraint("Horizontal", 3),
    Sketcher.Constraint("Equal", 3, 0),
    Sketcher.Constraint("DistanceX", 1, 1, 1, 2, 38.0),
    Sketcher.Constraint("DistanceX", 0, 2, -1, 1, 1969.0),
    Sketcher.Constraint("DistanceY", -1, 1, 0, 2, 103.0),
])
pad28 = doc.addObject("PartDesign::Pad", "Pad027")
body28.addObject(pad28)
pad28.Profile = sketch28
pad28.Type = "TwoLengths"
pad28.Length = 4920
pad28.Length2 = 200
pad28.Reversed = True
body29 = doc.addObject("PartDesign::Body", "Body028")

# Sketch on XZ plane
sketch29 = doc.addObject("Sketcher::SketchObject", "Sketch028")
body29.addObject(sketch29)
sketch29.AttachmentSupport = (doc.getObject("XZ_Plane028"), [""])
sketch29.MapMode = "FlatFace"
sketch29.AttachmentOffset = App.Placement(V(0, 0, 2460), App.Rotation())
add_polygon(sketch29, [(-2229, 141), (-2229, 103), (-2191, 103), (-2191, 141)])  # lines 0-3
sketch29.addConstraint([
    Sketcher.Constraint("Vertical", 0),
    Sketcher.Constraint("Horizontal", 1),
    Sketcher.Constraint("Vertical", 2),
    Sketcher.Constraint("Horizontal", 3),
    Sketcher.Constraint("Equal", 3, 0),
    Sketcher.Constraint("DistanceX", 1, 1, 1, 2, 38.0),
    Sketcher.Constraint("DistanceX", 0, 2, -1, 1, 2229.0),
    Sketcher.Constraint("DistanceY", -1, 1, 0, 2, 103.0),
])
pad29 = doc.addObject("PartDesign::Pad", "Pad028")
body29.addObject(pad29)
pad29.Profile = sketch29
pad29.Type = "TwoLengths"
pad29.Length = 4920
pad29.Length2 = 200
pad29.Reversed = True
body30 = doc.addObject("PartDesign::Body", "Body029")

# Sketch on XZ plane
sketch30 = doc.addObject("Sketcher::SketchObject", "Sketch029")
body30.addObject(sketch30)
sketch30.AttachmentSupport = (doc.getObject("XZ_Plane029"), [""])
sketch30.MapMode = "FlatFace"
sketch30.AttachmentOffset = App.Placement(V(0, 0, 2460), App.Rotation())
add_polygon(sketch30, [(-2489, 141), (-2489, 103), (-2451, 103), (-2451, 141)])  # lines 0-3
sketch30.addConstraint([
    Sketcher.Constraint("Vertical", 0),
    Sketcher.Constraint("Horizontal", 1),
    Sketcher.Constraint("Vertical", 2),
    Sketcher.Constraint("Horizontal", 3),
    Sketcher.Constraint("Equal", 3, 0),
    Sketcher.Constraint("DistanceX", 1, 1, 1, 2, 38.0),
    Sketcher.Constraint("DistanceX", 0, 2, -1, 1, 2489.0),
    Sketcher.Constraint("DistanceY", -1, 1, 0, 2, 103.0),
])
pad30 = doc.addObject("PartDesign::Pad", "Pad029")
body30.addObject(pad30)
pad30.Profile = sketch30
pad30.Type = "TwoLengths"
pad30.Length = 4920
pad30.Length2 = 200
pad30.Reversed = True

doc.recompute()
